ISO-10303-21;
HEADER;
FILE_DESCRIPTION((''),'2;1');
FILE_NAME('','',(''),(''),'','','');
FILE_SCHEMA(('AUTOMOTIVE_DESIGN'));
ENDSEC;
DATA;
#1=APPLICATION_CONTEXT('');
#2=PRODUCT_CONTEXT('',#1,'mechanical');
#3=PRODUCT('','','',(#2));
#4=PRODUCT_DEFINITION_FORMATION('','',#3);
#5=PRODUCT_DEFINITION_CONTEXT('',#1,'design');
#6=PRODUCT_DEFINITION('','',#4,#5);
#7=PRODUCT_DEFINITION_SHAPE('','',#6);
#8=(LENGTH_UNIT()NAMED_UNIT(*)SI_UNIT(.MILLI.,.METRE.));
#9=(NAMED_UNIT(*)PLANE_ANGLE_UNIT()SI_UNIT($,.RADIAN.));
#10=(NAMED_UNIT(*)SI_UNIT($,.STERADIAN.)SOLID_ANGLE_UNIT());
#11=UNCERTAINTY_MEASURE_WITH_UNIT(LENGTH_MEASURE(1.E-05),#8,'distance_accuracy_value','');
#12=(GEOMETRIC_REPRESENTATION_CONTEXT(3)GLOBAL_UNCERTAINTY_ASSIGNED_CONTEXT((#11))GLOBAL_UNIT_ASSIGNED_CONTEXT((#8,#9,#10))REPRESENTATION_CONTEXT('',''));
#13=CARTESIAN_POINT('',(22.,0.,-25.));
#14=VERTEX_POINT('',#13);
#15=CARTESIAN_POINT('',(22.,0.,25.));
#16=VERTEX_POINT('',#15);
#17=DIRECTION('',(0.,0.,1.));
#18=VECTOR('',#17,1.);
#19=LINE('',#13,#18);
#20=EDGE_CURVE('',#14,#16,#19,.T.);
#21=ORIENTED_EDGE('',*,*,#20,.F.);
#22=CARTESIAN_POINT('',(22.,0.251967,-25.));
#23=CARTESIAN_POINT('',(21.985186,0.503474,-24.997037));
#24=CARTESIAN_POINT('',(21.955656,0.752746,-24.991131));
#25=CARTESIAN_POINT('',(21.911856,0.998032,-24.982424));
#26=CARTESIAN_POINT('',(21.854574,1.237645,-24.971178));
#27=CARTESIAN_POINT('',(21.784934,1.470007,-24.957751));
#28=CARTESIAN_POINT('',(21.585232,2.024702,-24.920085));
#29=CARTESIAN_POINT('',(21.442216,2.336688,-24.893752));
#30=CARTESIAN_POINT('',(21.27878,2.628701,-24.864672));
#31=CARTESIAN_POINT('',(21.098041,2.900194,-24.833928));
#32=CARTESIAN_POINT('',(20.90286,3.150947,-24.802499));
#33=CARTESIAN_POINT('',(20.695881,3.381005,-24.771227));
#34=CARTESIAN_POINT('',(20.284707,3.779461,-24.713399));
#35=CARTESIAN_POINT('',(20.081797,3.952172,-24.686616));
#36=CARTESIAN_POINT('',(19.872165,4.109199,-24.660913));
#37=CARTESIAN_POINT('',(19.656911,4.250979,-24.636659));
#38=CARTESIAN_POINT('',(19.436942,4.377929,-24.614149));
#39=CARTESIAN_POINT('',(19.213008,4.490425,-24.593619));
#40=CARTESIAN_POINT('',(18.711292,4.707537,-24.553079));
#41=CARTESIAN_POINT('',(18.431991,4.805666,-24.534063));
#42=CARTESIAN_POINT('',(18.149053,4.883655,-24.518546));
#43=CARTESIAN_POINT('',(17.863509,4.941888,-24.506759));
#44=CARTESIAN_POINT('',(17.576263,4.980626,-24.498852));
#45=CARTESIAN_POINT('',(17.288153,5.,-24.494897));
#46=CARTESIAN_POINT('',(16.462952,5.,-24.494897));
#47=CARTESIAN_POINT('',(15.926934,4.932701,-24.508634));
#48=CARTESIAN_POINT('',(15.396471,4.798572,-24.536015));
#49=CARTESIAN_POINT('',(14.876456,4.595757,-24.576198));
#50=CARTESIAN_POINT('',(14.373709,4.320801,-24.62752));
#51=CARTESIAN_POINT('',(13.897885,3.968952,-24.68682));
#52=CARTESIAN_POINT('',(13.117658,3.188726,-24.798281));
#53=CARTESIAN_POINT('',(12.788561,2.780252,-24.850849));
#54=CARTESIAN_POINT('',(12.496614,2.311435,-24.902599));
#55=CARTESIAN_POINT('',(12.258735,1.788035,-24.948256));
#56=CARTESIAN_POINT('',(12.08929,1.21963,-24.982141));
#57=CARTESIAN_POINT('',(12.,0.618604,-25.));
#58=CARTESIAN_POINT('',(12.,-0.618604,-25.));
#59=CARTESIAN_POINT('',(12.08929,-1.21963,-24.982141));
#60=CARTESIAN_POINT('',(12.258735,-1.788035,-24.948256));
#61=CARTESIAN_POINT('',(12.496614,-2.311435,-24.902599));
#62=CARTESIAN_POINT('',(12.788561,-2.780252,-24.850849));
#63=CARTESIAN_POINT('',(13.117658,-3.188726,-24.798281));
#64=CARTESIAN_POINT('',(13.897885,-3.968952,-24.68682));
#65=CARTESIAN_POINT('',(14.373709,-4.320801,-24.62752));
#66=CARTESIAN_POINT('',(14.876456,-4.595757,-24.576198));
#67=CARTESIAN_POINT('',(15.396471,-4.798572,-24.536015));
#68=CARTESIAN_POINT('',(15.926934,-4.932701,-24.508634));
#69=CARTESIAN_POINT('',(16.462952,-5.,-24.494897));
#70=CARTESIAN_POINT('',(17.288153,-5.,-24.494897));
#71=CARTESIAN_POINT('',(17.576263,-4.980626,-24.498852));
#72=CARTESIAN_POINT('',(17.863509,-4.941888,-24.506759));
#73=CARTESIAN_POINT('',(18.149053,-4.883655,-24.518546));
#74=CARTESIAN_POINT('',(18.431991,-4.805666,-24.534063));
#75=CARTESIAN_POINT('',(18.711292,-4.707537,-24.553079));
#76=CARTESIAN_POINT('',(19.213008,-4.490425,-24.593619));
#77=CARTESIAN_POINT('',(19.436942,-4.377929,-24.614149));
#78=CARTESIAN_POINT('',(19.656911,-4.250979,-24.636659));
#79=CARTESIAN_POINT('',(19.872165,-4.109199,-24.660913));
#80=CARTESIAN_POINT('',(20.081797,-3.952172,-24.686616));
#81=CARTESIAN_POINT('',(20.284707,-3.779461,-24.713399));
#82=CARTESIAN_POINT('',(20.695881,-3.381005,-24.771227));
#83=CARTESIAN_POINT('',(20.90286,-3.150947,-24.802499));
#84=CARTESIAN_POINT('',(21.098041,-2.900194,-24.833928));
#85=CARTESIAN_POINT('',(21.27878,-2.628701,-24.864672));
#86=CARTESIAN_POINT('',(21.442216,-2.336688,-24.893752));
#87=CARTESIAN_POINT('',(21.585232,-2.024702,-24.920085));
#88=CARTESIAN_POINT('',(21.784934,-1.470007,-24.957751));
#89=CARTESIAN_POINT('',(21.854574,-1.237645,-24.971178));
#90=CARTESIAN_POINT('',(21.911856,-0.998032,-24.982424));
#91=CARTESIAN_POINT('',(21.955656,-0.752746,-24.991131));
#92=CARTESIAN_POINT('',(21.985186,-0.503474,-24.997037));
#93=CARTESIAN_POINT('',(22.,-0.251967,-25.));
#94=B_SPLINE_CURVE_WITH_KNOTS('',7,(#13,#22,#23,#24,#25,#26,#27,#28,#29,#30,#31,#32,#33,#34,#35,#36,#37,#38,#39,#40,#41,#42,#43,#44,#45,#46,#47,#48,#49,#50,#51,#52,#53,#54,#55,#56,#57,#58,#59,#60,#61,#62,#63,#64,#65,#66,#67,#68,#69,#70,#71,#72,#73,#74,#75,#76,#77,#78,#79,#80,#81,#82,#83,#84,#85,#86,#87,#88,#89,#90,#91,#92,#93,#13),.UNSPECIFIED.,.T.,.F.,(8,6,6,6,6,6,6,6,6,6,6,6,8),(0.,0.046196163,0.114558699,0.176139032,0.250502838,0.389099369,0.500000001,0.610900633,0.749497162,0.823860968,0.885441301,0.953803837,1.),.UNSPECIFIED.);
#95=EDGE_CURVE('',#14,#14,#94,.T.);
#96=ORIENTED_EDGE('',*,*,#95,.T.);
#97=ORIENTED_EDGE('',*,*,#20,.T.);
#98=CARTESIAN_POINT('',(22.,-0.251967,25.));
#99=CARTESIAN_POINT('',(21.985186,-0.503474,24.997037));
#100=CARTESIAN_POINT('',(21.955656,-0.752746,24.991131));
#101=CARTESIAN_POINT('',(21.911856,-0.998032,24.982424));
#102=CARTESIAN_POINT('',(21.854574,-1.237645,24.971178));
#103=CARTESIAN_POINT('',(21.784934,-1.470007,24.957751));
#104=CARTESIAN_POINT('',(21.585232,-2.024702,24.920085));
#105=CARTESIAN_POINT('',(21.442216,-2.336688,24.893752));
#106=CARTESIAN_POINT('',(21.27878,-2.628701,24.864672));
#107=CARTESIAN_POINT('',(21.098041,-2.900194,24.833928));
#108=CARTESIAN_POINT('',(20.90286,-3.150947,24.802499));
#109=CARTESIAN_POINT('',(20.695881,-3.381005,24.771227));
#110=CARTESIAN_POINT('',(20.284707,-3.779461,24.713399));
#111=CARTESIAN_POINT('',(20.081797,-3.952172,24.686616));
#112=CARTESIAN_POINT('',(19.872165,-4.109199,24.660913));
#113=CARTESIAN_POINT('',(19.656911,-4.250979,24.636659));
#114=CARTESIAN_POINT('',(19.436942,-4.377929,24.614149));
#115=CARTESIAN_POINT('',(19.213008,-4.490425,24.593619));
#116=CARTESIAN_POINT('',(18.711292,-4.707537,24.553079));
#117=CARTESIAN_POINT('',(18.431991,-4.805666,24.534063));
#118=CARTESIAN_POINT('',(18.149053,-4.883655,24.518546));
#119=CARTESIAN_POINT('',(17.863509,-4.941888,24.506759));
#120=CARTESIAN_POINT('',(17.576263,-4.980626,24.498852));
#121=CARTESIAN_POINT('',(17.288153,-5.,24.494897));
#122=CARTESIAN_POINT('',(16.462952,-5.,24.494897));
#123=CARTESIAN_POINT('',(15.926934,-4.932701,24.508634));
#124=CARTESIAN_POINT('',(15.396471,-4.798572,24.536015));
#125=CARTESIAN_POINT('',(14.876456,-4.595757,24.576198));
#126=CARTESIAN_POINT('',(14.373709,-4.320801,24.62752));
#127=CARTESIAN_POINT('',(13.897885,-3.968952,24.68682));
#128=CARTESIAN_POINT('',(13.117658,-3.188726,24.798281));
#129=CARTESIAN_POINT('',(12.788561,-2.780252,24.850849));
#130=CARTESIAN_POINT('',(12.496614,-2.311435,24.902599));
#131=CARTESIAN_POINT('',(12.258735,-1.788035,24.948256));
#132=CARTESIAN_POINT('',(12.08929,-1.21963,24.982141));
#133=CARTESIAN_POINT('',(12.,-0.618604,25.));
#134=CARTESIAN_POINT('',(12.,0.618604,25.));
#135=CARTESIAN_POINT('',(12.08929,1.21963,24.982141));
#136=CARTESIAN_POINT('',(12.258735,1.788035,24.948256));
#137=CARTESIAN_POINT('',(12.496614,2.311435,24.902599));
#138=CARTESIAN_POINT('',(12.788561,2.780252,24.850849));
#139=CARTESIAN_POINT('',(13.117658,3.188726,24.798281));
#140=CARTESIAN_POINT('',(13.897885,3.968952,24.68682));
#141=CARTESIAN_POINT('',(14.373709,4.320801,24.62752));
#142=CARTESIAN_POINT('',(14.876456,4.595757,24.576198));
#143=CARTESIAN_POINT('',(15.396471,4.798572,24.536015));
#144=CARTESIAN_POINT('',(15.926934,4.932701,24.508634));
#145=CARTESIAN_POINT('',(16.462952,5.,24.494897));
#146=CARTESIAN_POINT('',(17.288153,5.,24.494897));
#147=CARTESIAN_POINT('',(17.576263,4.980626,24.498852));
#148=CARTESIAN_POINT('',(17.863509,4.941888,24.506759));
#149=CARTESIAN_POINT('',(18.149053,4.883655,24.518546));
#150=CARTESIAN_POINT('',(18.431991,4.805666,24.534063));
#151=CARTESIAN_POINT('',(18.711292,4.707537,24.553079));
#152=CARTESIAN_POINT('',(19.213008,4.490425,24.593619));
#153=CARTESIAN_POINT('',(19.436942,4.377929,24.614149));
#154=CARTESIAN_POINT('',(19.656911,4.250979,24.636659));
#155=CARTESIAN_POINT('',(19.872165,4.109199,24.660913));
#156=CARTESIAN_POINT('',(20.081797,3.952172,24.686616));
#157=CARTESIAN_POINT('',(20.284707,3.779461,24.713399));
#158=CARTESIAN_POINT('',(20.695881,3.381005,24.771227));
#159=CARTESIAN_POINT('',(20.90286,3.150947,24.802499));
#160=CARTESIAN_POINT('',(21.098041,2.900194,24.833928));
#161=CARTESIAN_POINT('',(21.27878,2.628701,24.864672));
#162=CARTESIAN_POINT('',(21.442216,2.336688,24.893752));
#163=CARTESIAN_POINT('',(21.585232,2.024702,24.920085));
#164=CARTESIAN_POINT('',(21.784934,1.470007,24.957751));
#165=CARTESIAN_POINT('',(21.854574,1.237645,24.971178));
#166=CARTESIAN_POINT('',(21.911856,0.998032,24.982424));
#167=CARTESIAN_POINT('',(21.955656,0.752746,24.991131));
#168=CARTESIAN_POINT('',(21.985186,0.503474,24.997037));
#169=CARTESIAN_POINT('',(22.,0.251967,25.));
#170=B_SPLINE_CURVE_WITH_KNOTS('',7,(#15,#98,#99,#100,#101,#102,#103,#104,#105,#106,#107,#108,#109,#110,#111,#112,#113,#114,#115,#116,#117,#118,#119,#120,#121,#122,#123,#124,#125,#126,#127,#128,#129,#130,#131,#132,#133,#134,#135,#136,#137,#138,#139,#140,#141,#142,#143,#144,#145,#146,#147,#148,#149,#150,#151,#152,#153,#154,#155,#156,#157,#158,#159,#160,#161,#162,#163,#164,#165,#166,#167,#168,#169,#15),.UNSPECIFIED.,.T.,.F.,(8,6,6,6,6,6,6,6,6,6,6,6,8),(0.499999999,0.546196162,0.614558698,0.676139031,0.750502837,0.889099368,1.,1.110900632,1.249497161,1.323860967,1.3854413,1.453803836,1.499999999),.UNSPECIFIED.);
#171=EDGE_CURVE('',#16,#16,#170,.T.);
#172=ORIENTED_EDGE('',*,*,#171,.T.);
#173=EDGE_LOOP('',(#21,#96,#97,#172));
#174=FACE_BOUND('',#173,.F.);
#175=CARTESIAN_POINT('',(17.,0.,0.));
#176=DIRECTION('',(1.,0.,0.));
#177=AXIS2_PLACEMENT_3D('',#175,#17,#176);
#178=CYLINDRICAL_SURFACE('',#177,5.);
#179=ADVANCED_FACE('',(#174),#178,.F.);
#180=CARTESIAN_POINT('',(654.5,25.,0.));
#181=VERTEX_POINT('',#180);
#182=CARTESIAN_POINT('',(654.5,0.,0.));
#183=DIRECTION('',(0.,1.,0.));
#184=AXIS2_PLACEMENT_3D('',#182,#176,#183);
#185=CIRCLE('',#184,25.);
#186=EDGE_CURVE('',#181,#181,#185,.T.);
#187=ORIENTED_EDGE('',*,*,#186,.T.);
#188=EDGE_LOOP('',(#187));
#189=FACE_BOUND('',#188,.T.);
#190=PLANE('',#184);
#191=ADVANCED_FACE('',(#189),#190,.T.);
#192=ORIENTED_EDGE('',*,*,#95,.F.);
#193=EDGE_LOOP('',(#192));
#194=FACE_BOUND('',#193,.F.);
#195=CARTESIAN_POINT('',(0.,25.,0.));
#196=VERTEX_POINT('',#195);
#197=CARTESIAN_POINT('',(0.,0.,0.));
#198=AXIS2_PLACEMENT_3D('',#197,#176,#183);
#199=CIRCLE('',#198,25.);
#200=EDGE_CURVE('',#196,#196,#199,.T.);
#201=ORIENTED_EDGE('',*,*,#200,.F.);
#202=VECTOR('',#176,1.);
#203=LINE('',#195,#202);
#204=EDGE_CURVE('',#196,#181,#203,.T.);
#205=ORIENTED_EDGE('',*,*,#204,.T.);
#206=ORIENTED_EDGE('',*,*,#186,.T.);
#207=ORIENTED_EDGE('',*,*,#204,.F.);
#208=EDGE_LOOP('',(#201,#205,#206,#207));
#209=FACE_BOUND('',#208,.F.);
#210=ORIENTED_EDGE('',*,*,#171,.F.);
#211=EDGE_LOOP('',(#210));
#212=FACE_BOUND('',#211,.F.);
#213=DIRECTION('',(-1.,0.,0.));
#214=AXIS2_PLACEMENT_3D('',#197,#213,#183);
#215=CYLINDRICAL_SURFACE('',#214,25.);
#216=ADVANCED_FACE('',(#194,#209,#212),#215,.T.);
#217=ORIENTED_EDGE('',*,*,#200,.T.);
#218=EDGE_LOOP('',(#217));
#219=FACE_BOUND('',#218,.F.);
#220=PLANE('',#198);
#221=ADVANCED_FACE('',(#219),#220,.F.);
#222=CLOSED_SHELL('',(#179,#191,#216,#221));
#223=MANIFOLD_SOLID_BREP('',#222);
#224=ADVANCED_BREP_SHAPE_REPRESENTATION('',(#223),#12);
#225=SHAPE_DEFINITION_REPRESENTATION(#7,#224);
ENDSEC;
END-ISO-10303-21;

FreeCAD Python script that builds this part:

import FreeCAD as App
import Part
import Sketcher

V = App.Vector

doc = App.newDocument("Part")
body = doc.addObject("PartDesign::Body", "Body")

# Sketch on YZ plane
sketch1 = body.newObject("Sketcher::SketchObject", "Sketch")
sketch1.AttachmentSupport = (doc.getObject("YZ_Plane"), [""])
sketch1.MapMode = "FlatFace"
sketch1.addGeometry(Part.Circle(V(0, 0, 0), V(0, 0, 1), 25), False)
sketch1.addConstraint(Sketcher.Constraint("Coincident", 0, 3, -1, 1))
sketch1.addConstraint(Sketcher.Constraint("Diameter", 0, 50.0))
pad1 = body.newObject("PartDesign::Pad", "Pad")
pad1.Profile = sketch1
pad1.Length = 654.5

# Sketch on XY plane
sketch2 = body.newObject("Sketcher::SketchObject", "Sketch001")
sketch2.AttachmentSupport = (doc.getObject("XY_Plane"), [""])
sketch2.MapMode = "FlatFace"
sketch2.addGeometry(Part.Circle(V(17, 0, 0), V(0, 0, 1), 5), False)
sketch2.addConstraint(Sketcher.Constraint("PointOnObject", 0, 3, -1))
sketch2.addConstraint(Sketcher.Constraint("Diameter", 0, 10.0))
sketch2.addConstraint(Sketcher.Constraint("DistanceX", -1, 1, 0, 3, 17.0))
pocket1 = body.newObject("PartDesign::Pocket", "Pocket")
pocket1.Profile = sketch2
pocket1.Length = 50
pocket1.Midplane = True

doc.recompute()
